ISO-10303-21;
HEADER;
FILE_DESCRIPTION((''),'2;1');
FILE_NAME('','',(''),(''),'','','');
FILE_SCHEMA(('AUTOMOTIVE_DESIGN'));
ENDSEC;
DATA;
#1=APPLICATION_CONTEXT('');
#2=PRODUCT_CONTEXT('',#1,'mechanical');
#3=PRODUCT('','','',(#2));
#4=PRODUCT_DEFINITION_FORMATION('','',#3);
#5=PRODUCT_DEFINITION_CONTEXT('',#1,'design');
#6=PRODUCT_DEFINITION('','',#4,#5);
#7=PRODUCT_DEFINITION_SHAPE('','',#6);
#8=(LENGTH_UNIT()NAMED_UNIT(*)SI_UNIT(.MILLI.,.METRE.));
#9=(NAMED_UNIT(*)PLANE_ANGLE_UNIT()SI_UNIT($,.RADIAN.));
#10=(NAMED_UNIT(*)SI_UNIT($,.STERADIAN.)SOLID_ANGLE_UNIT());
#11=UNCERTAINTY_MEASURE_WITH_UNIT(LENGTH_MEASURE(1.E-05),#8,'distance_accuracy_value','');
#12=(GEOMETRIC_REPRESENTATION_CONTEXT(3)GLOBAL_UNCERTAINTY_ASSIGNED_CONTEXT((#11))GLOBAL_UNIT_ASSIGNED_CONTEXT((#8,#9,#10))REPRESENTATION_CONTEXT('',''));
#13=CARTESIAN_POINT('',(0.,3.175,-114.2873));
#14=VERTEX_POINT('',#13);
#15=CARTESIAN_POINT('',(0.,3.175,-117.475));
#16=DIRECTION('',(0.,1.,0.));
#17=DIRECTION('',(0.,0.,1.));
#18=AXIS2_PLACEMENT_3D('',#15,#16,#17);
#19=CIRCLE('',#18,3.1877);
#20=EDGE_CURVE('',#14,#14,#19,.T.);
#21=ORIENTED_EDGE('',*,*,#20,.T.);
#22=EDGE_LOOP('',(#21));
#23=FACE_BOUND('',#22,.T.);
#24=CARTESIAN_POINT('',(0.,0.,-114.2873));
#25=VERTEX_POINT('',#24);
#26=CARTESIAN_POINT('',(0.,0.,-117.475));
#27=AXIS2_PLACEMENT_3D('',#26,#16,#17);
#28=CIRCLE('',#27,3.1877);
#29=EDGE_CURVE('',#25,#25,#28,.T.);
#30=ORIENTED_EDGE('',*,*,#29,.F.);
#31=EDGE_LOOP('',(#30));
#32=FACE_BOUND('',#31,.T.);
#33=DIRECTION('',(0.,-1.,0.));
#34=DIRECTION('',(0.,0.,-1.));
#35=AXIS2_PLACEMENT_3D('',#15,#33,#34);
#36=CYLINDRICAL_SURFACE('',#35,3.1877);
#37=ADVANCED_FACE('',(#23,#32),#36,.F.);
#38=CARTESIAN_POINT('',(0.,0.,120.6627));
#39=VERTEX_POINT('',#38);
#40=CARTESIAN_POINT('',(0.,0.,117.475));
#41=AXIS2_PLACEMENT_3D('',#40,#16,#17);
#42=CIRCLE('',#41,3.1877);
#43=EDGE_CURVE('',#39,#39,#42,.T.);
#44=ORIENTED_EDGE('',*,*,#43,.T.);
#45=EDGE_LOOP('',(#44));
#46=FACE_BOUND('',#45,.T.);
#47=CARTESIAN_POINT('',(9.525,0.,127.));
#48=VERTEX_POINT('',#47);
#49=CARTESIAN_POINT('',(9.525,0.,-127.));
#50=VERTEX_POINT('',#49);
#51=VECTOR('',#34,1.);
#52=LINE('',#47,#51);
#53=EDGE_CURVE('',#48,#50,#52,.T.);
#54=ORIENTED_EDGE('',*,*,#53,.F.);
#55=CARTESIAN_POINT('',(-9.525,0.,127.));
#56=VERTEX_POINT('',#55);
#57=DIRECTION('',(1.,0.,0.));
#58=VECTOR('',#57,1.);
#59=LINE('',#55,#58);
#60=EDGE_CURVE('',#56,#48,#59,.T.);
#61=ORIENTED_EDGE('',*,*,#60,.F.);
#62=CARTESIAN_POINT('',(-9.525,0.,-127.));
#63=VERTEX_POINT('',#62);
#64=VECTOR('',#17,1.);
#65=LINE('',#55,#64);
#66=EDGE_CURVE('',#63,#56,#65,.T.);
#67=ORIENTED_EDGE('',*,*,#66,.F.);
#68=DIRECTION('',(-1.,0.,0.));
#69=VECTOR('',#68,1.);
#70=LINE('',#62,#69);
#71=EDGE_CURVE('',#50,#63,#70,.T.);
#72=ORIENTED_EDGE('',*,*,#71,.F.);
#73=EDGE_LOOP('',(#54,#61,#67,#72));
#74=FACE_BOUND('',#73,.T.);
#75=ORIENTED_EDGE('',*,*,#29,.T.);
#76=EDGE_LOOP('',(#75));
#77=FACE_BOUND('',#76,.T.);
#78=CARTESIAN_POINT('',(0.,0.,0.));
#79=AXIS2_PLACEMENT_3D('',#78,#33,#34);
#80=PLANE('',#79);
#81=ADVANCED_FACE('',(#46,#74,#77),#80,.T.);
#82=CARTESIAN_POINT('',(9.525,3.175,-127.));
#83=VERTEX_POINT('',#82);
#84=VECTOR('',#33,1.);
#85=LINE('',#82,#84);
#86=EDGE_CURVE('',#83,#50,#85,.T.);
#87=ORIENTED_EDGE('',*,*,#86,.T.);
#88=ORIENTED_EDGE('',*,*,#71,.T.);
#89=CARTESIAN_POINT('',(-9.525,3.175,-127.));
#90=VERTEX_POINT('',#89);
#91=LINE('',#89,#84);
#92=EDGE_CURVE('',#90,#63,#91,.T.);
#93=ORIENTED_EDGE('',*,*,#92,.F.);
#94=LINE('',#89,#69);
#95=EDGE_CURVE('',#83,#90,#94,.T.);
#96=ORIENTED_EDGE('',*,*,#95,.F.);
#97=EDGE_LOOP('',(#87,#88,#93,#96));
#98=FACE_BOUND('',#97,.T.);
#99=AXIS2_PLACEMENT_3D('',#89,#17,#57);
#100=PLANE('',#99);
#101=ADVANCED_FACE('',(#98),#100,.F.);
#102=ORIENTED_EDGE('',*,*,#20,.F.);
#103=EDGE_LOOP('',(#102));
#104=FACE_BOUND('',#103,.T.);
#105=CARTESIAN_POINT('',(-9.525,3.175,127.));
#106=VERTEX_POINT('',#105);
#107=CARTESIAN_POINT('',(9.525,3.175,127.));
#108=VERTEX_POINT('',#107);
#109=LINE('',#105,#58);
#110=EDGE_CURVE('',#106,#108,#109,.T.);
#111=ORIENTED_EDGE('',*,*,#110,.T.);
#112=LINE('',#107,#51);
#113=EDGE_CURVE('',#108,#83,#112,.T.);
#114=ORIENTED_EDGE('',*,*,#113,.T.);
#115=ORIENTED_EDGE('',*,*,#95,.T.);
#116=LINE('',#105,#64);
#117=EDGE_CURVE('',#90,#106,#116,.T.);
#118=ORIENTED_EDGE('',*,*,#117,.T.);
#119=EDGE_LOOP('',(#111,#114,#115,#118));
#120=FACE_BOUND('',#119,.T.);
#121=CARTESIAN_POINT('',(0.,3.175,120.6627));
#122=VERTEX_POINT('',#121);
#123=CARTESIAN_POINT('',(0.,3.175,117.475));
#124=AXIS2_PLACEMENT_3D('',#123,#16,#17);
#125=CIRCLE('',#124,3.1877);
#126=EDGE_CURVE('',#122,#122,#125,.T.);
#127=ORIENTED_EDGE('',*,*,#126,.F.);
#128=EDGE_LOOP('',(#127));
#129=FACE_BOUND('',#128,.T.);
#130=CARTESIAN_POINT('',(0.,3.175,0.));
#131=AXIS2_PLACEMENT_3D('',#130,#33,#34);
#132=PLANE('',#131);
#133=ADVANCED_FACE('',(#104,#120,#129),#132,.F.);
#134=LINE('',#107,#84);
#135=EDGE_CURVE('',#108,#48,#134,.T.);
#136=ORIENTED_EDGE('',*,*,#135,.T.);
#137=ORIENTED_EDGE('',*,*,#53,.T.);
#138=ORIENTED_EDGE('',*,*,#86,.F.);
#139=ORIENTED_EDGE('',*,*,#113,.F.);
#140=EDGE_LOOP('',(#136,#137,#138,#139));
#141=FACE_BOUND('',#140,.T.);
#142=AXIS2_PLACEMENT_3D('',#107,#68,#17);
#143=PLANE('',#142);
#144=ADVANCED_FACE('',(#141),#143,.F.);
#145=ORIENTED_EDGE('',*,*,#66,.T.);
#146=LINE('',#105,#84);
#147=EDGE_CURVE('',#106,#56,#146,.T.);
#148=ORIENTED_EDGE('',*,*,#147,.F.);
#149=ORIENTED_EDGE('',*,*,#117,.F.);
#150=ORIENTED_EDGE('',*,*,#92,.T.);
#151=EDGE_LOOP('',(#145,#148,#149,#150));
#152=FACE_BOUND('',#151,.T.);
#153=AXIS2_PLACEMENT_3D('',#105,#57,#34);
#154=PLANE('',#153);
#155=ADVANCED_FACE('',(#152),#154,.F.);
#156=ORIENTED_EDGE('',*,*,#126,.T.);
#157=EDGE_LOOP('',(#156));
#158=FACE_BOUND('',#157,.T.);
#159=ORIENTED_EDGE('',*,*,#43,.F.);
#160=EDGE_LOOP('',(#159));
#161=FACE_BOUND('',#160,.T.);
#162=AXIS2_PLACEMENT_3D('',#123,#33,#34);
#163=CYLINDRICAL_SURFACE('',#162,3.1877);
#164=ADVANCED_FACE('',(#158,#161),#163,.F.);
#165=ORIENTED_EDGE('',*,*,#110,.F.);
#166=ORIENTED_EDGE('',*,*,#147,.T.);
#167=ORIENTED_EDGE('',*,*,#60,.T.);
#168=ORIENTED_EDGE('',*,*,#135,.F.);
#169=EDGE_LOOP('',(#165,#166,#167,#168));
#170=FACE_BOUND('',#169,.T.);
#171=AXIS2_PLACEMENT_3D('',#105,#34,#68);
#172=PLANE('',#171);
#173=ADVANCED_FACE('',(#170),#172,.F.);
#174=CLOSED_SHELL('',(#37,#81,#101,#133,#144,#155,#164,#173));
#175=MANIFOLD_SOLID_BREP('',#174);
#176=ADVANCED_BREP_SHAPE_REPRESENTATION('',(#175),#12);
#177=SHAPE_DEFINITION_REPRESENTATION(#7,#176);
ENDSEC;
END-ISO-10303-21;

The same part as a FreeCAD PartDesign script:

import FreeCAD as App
import Part
import Sketcher
Q = App.Units.Quantity


def add_polygon(sketch, points):
    """Adds a closed chain of lines whose ends are joined by coincident constraints."""
    first, n = sketch.GeometryCount, len(points)
    for a, b in zip(points, points[1:] + points[:1]):
        sketch.addGeometry(Part.LineSegment(App.Vector(*a, 0), App.Vector(*b, 0)), False)
    for i in range(n):
        sketch.addConstraint(Sketcher.Constraint("Coincident", first + i, 2, first + (i + 1) % n, 1))

doc = App.newDocument("Part")
body = doc.addObject("PartDesign::Body", "Body")

# Sketch on XZ plane
sketch1 = doc.addObject("Sketcher::SketchObject", "Sketch")
body.addObject(sketch1)
sketch1.AttachmentSupport = (doc.XZ_Plane, [""])
sketch1.MapMode = "FlatFace"
add_polygon(sketch1, [(-9.5, -127), (-9.5, 127), (9.5, 127), (9.5, -127)])  # lines 0-3
sketch1.addGeometry(Part.Circle(App.Vector(0, 117.5, 0), App.Vector(0, 0, 1), 3.2), False)  # 4
sketch1.addGeometry(Part.Circle(App.Vector(0, -117.5, 0), App.Vector(0, 0, 1), 3.2), False)  # 5
sketch1.addConstraint([
    Sketcher.Constraint("Vertical", 0),
    Sketcher.Constraint("Horizontal", 1),
    Sketcher.Constraint("Vertical", 2),
    Sketcher.Constraint("Horizontal", 3),
    Sketcher.Constraint("Equal", 4, 5),
    Sketcher.Constraint("Symmetric", 4, 3, 5, 3, -1, 1),
    Sketcher.Constraint("Symmetric", 0, 2, 2, 2, -1, 1),
    Sketcher.Constraint("PointOnObject", 4, 3, -2),
    Sketcher.Constraint("DistanceY", 0, 1, 0, 2, Q("10 in")),
    Sketcher.Constraint("Diameter", 4, Q("0.251 in")),
    Sketcher.Constraint("DistanceX", 1, 1, 1, 2, Q("0.75 in")),
    Sketcher.Constraint("DistanceY", 5, 3, 4, 3, Q("9.25 in")),
])
pad1 = doc.addObject("PartDesign::Pad", "Pad")
body.addObject(pad1)
pad1.Profile = sketch1
pad1.Length = Q("0.125 in")
pad1.Reversed = True

doc.recompute()
